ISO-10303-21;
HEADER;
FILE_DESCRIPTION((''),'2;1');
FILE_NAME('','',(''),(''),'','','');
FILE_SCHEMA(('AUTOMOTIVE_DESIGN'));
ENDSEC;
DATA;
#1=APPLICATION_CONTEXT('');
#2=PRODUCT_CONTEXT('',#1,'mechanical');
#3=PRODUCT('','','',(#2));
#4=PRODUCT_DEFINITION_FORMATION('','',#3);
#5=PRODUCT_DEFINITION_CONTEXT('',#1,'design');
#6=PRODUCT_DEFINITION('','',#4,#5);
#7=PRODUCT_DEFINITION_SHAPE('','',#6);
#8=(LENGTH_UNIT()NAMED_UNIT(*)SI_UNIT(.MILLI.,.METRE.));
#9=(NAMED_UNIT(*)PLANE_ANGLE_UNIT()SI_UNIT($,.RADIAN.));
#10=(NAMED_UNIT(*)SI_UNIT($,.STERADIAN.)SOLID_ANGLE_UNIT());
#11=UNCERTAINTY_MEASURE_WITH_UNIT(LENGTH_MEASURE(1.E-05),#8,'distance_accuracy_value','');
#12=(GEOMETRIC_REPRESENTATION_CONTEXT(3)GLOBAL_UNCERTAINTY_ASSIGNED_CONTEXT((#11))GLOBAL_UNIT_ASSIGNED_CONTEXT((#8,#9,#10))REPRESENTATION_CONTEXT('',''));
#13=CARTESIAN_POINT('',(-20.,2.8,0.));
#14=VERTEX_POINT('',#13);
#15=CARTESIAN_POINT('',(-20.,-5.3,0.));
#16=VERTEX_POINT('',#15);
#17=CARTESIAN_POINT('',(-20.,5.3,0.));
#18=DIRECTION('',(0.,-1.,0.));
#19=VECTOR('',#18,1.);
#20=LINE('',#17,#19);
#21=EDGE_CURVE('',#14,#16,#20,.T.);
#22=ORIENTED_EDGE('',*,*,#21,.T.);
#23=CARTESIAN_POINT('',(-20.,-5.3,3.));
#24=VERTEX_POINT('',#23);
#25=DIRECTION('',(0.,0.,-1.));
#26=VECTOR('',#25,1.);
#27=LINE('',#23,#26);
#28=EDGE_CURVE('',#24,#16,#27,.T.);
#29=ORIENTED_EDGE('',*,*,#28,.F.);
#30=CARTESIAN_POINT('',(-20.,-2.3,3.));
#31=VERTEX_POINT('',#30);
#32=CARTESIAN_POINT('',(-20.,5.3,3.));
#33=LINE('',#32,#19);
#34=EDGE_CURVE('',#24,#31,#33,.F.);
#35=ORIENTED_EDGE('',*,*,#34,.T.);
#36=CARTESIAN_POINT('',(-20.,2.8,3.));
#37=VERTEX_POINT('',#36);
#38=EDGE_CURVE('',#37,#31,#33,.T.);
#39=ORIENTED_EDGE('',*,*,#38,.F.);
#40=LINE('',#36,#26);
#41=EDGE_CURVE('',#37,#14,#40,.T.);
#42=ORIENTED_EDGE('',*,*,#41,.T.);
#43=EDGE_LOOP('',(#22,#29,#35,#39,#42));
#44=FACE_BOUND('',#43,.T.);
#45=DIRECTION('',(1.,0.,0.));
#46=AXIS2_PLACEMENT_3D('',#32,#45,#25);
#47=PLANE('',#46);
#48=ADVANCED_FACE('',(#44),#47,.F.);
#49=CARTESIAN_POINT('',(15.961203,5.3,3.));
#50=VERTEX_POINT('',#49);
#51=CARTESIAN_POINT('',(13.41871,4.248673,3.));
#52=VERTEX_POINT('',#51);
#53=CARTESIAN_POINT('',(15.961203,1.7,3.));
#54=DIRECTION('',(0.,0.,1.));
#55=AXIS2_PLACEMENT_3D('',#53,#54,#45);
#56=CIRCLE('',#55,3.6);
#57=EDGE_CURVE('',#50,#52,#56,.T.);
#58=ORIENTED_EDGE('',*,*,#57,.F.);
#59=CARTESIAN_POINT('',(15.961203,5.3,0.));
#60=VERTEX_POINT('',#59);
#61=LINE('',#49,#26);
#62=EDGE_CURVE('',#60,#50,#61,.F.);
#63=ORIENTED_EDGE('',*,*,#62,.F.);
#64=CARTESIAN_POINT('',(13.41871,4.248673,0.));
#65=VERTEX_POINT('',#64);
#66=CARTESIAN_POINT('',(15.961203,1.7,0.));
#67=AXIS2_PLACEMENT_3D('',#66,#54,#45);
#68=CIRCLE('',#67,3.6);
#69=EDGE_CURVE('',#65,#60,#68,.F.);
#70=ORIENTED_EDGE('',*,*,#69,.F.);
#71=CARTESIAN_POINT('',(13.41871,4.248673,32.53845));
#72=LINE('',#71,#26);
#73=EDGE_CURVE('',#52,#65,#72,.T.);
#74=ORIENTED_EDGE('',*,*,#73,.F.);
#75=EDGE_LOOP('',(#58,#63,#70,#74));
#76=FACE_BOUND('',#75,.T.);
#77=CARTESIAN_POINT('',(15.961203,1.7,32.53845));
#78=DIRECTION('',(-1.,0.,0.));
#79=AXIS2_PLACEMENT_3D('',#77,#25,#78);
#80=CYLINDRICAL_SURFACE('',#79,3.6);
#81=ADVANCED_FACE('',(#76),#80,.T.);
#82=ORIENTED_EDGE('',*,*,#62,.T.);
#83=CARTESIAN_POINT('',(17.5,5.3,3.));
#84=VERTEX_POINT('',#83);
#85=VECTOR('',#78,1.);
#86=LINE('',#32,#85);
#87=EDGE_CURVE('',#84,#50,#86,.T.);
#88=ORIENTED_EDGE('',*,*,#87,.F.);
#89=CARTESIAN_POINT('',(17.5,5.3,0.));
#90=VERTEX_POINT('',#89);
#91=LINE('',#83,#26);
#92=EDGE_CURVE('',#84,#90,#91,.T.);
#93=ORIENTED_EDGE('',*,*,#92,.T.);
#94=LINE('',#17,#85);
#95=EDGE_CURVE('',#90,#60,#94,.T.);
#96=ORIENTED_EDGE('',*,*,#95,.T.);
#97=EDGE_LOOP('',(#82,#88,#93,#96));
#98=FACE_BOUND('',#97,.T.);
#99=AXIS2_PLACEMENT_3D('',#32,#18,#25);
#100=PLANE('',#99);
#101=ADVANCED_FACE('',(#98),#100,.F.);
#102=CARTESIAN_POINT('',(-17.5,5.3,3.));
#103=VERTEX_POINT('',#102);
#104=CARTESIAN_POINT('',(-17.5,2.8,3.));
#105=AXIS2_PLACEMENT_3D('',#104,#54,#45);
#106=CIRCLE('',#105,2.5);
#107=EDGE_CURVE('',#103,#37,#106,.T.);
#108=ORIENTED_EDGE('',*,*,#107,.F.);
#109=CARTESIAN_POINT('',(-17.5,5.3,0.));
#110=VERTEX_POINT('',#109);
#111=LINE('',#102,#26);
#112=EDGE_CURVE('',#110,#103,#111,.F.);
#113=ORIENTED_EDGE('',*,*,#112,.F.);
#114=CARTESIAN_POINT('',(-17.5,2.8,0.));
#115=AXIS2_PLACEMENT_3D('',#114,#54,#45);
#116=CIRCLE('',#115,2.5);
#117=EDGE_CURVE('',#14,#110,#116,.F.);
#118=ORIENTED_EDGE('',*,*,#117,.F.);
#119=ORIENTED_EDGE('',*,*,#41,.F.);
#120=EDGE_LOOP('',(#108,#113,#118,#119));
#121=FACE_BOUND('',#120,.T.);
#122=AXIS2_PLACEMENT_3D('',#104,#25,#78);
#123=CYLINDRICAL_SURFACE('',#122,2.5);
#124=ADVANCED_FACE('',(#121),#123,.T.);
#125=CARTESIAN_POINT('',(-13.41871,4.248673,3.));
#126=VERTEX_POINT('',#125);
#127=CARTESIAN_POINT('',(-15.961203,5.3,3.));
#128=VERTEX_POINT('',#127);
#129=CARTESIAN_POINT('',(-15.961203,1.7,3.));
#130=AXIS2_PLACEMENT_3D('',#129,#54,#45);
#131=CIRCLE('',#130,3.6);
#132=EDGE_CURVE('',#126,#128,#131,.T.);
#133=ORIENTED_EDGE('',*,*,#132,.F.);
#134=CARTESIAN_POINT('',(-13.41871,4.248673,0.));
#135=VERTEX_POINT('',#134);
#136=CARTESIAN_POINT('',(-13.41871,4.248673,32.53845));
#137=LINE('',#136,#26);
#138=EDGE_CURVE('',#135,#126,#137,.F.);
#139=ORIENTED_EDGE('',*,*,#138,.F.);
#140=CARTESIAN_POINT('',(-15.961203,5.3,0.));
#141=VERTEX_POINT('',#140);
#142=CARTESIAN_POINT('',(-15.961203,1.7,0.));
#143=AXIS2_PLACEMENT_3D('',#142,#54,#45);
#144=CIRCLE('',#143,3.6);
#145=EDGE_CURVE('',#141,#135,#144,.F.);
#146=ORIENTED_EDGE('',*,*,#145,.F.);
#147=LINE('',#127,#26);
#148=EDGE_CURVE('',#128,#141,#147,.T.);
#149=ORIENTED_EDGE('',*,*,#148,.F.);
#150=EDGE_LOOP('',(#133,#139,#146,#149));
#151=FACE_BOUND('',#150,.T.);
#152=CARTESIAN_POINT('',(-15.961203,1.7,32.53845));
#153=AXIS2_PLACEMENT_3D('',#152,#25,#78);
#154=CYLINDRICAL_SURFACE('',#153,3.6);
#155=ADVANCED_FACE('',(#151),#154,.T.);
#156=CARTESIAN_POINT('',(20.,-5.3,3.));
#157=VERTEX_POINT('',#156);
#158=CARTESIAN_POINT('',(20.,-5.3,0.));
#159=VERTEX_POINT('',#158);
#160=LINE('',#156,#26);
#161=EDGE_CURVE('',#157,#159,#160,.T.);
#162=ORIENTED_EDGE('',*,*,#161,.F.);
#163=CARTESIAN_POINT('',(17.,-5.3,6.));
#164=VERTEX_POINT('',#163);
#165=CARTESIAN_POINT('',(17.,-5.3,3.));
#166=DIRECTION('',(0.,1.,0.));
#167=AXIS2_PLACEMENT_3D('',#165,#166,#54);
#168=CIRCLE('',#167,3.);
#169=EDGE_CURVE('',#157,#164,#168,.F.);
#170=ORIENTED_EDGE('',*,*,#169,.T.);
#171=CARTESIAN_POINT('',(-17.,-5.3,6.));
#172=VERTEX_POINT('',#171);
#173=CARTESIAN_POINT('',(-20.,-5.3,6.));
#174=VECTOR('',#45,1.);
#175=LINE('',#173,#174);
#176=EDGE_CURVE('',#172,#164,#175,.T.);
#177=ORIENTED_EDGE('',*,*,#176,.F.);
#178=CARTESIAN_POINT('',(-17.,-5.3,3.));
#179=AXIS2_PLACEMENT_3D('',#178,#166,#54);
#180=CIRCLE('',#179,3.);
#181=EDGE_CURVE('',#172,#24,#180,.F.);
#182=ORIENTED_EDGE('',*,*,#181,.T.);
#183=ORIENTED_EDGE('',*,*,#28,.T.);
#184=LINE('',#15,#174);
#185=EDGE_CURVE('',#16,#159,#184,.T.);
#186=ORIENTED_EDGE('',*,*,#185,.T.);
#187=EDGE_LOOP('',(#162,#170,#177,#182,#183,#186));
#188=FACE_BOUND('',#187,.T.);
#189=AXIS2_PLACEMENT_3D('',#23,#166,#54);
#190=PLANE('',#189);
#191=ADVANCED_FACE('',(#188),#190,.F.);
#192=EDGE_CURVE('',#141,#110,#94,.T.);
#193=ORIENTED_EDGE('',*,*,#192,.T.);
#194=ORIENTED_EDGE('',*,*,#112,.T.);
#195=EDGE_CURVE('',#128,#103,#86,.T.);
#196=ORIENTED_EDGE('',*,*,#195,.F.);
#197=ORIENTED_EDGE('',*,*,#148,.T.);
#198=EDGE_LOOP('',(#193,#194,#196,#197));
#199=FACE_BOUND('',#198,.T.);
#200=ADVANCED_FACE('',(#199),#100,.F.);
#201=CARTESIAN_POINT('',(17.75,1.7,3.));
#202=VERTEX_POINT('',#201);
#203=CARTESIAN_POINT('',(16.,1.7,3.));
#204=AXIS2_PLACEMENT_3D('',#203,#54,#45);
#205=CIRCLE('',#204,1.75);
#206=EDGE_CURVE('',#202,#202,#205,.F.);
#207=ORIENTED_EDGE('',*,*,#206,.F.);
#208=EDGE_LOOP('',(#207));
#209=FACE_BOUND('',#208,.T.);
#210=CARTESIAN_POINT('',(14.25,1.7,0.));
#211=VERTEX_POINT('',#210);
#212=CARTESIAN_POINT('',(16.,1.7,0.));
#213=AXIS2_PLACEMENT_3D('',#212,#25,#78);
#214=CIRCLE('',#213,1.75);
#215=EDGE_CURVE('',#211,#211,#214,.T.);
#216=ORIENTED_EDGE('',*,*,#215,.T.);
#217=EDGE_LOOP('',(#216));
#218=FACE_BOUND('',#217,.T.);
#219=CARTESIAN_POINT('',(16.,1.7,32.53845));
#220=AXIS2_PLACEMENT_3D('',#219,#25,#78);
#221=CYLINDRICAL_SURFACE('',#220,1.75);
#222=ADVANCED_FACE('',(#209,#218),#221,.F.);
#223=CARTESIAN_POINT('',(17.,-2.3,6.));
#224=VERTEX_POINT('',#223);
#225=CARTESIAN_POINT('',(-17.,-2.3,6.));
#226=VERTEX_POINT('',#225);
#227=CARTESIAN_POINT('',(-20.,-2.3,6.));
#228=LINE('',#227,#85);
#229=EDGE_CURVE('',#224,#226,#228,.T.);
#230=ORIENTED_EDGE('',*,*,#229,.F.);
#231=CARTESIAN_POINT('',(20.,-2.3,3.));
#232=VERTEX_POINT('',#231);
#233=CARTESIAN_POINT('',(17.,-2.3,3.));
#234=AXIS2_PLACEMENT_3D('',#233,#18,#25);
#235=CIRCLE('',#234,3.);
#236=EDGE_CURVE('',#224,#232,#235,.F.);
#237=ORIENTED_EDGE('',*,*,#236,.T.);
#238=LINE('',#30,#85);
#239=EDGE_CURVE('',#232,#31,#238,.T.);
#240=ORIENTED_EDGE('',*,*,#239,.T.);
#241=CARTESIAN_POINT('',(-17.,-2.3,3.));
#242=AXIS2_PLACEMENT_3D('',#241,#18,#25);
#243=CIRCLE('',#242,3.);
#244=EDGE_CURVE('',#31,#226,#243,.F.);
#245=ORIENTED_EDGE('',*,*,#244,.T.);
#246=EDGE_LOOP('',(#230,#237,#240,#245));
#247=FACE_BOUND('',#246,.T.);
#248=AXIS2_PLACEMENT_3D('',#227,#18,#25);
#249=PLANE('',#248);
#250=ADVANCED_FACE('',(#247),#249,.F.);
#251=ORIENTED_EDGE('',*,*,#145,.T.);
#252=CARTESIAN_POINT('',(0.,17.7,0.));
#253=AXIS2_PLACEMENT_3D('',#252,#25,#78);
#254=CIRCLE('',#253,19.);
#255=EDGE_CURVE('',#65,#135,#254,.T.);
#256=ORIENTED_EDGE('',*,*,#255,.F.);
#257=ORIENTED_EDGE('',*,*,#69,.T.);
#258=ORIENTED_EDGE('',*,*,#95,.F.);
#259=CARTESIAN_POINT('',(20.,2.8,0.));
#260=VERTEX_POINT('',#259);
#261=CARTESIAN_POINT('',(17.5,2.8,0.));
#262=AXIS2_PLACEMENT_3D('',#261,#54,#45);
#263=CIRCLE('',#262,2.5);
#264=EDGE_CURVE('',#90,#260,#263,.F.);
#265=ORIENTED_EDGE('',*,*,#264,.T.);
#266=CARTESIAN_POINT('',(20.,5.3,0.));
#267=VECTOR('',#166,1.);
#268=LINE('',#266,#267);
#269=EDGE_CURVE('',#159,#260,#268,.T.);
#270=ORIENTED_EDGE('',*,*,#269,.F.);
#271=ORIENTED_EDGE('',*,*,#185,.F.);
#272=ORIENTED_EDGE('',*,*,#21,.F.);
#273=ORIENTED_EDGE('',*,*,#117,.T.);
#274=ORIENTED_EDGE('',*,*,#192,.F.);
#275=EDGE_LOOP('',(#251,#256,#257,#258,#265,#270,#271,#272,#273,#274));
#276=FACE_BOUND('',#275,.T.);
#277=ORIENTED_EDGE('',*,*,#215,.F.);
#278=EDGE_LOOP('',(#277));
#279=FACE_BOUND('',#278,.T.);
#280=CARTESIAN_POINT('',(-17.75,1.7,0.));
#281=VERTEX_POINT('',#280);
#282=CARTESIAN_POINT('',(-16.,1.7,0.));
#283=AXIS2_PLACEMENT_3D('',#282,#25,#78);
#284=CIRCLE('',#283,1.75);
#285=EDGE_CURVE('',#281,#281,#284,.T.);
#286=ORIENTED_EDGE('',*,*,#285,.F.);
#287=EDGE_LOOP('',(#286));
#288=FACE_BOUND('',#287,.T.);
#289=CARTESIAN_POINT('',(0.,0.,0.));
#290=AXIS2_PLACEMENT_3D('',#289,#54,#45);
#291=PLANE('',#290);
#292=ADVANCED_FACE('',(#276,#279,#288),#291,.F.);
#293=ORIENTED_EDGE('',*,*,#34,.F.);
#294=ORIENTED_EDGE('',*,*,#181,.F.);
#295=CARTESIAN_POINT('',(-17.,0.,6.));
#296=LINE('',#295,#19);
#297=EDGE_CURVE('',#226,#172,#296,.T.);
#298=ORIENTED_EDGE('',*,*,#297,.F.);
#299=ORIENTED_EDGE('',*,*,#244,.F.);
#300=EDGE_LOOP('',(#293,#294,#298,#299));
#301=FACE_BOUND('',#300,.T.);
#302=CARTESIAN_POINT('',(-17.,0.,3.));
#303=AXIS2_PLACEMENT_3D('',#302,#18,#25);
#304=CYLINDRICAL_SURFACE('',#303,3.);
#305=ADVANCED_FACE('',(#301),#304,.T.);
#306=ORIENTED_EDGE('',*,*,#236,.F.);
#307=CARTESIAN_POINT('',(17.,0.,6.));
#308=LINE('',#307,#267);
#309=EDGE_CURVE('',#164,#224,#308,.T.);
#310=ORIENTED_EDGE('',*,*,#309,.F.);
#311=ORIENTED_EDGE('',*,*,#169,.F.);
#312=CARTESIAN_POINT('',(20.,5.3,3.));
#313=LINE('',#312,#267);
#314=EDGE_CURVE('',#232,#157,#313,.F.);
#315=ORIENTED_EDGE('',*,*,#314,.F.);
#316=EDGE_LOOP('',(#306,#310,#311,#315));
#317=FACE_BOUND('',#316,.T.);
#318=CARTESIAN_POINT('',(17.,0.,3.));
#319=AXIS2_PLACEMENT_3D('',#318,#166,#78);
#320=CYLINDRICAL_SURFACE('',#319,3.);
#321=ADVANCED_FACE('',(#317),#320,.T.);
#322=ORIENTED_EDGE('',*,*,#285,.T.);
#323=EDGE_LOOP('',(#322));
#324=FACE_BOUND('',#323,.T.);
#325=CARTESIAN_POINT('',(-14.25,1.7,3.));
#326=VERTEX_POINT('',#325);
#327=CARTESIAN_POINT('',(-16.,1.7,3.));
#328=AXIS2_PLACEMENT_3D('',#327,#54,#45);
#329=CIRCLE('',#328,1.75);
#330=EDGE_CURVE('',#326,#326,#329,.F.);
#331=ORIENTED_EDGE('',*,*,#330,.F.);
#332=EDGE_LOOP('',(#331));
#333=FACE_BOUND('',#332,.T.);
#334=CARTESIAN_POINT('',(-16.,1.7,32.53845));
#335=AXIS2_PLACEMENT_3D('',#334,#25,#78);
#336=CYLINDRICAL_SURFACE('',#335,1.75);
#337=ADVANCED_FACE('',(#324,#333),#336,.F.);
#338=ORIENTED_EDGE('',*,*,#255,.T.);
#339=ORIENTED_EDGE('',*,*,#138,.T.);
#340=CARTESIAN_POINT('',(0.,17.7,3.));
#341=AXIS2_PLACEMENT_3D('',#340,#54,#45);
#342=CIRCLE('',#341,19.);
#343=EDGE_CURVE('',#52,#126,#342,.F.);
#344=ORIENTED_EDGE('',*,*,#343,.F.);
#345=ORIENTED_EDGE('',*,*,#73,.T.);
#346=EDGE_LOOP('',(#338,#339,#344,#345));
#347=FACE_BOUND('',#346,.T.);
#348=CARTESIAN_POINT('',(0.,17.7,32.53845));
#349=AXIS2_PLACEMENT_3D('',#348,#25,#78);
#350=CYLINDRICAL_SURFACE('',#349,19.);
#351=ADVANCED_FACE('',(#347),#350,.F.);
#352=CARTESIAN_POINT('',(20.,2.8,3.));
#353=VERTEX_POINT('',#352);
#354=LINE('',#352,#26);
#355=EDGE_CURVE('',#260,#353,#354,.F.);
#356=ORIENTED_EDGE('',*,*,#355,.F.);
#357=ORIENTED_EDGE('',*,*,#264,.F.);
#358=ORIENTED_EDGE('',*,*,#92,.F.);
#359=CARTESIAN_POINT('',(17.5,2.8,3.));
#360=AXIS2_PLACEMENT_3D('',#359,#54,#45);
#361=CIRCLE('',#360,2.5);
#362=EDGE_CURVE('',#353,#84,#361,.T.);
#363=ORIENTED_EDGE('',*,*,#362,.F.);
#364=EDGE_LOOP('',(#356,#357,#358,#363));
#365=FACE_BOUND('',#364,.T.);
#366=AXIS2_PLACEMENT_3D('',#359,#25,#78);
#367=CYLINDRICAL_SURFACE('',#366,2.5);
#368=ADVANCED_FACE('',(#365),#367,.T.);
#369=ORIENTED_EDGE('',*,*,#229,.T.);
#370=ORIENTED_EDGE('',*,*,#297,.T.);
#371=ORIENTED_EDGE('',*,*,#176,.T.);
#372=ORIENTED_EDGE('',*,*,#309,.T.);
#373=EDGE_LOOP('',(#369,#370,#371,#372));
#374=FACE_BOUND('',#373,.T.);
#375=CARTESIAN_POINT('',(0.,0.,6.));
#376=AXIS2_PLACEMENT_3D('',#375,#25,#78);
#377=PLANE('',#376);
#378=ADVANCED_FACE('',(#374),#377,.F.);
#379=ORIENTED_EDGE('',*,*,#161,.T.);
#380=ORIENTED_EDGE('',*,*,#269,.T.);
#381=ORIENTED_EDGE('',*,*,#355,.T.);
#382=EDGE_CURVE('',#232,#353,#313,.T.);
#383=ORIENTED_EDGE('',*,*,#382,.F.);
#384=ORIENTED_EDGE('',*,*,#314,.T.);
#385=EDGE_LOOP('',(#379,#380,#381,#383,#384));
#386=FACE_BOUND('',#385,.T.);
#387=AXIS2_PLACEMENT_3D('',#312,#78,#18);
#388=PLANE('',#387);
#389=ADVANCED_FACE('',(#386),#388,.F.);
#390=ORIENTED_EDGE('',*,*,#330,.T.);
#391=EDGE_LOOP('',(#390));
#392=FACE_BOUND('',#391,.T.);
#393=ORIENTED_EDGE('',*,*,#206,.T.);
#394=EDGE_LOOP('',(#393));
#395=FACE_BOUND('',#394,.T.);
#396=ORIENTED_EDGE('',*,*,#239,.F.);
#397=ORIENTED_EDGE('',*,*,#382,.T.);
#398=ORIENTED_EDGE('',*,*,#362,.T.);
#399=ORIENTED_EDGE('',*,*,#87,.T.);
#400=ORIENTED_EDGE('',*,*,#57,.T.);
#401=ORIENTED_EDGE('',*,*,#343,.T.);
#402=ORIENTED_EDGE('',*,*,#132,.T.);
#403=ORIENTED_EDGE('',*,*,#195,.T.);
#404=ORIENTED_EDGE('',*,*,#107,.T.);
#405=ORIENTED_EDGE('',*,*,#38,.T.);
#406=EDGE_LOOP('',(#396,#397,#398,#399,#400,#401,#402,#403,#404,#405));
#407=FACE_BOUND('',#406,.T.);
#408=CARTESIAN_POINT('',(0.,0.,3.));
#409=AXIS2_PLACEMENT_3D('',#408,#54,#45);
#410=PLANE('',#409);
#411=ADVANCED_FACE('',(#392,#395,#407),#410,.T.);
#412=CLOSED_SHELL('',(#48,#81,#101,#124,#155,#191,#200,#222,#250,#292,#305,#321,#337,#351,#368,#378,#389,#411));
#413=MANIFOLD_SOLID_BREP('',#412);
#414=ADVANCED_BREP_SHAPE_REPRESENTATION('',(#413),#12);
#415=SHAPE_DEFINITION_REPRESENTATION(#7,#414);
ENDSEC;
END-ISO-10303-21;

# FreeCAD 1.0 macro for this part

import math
import FreeCAD as App
import Part
import Sketcher

V = App.Vector


def edges_at(feature, points):
    """Names of the edges that pass closest to the given points."""
    edges = feature.Shape.Edges
    near = lambda p: min(range(len(edges)), key=lambda i: edges[i].distToShape(Part.Vertex(*p))[0])
    return sorted({f"Edge{near(p) + 1}" for p in points})


def add_polygon(sketch, points):
    """Adds a closed chain of lines whose ends are joined by coincident constraints."""
    first, n = sketch.GeometryCount, len(points)
    for a, b in zip(points, points[1:] + points[:1]):
        sketch.addGeometry(Part.LineSegment(App.Vector(*a, 0), App.Vector(*b, 0)), False)
    for i in range(n):
        sketch.addConstraint(Sketcher.Constraint("Coincident", first + i, 2, first + (i + 1) % n, 1))

doc = App.newDocument("Part")
body = doc.addObject("PartDesign::Body", "Body")

# Sketch on XY plane
sketch1 = doc.addObject("Sketcher::SketchObject", "Sketch")
body.addObject(sketch1)
sketch1.AttachmentSupport = (doc.XY_Plane, [""])
sketch1.MapMode = "FlatFace"
add_polygon(sketch1, [(-20, 5), (-20, -5), (20, -5), (20, 5)])  # lines 0-3
sketch1.addConstraint(Sketcher.Constraint("Vertical", 0))
sketch1.addConstraint(Sketcher.Constraint("Horizontal", 1))
sketch1.addConstraint(Sketcher.Constraint("Vertical", 2))
sketch1.addConstraint(Sketcher.Constraint("Horizontal", 3))
sketch1.addConstraint(Sketcher.Constraint("Symmetric", 0, 2, 2, 2, -1, 1))
sketch1.addConstraint(Sketcher.Constraint("DistanceX", 1, 1, 1, 2, 40.0))
sketch1.addConstraint(Sketcher.Constraint("DistanceY", 0, 2, 0, 1, 10.6))
pad1 = doc.addObject("PartDesign::Pad", "Pad")
body.addObject(pad1)
pad1.Profile = sketch1
pad1.Length = 3

# Sketch on XY plane
sketch2 = doc.addObject("Sketcher::SketchObject", "Sketch001")
body.addObject(sketch2)
sketch2.AttachmentSupport = (doc.XY_Plane, [""])
sketch2.MapMode = "FlatFace"
sketch2.AttachmentOffset = App.Placement(V(0, 0, 3), App.Rotation())
add_polygon(sketch2, [(-20, -2.3), (-20, -5.3), (20, -5.3), (20, -2.3)])  # lines 0-3
sketch2.addConstraint(Sketcher.Constraint("Vertical", 0))
sketch2.addConstraint(Sketcher.Constraint("Horizontal", 1))
sketch2.addConstraint(Sketcher.Constraint("Vertical", 2))
sketch2.addConstraint(Sketcher.Constraint("Horizontal", 3))
sketch2.addConstraint(Sketcher.Constraint("DistanceX", 1, 1, 1, 2, 40.0))
sketch2.addConstraint(Sketcher.Constraint("DistanceY", 0, 2, 0, 1, 3.0))
sketch2.addConstraint(Sketcher.Constraint("DistanceX", 0, 2, -1, 1, 20.0))
sketch2.addConstraint(Sketcher.Constraint("DistanceY", 0, 2, -1, 1, 5.3))
pad2 = doc.addObject("PartDesign::Pad", "Pad001")
body.addObject(pad2)
pad2.Profile = sketch2
pad2.Length = 3
doc.recompute()

fillet = doc.addObject("PartDesign::Fillet", "Fillet")
body.addObject(fillet)
fillet.Base = (pad2, edges_at(pad2, [(-20, -3.8, 6), (20, -3.8, 6)]))
fillet.Radius = 3

# Sketch on XY plane
sketch3 = doc.addObject("Sketcher::SketchObject", "Sketch002")
body.addObject(sketch3)
sketch3.AttachmentSupport = (doc.XY_Plane, [""])
sketch3.MapMode = "FlatFace"
sketch3.addGeometry(Part.ArcOfCircle(Part.Circle(V(0, 17.7, 0), V(0, 0, 1), 19), math.radians(-180), math.radians(-139)), False)
sketch3.addGeometry(Part.ArcOfCircle(Part.Circle(V(0, 17.7, 0), V(0, 0, 1), 19), math.radians(-41), math.radians(180)), False)
sketch3.addGeometry(Part.ArcOfCircle(Part.Circle(V(0, 17.7, 0), V(0, 0, 1), 19), math.radians(-139), math.radians(-41)), False)
sketch3.addGeometry(Part.Circle(V(-16, 1.7, 0), V(0, 0, 1), 1.8), False)
sketch3.addGeometry(Part.Circle(V(16, 1.7, 0), V(0, 0, 1), 1.8), False)
sketch3.addConstraint(Sketcher.Constraint("Tangent", 0, 1, 1, 2))
sketch3.addConstraint(Sketcher.Constraint("Tangent", 1, 1, 2, 2))
sketch3.addConstraint(Sketcher.Constraint("Tangent", 2, 1, 0, 2))
sketch3.addConstraint(Sketcher.Constraint("Equal", 3, 4))
sketch3.addConstraint(Sketcher.Constraint("Symmetric", 3, 3, 4, 3, -2))
sketch3.addConstraint(Sketcher.Constraint("Symmetric", 1, 1, 2, 1, -2))
sketch3.addConstraint(Sketcher.Constraint("Horizontal", 2, 3, 0, 1))
sketch3.addConstraint(Sketcher.Constraint("Radius", 0, 19.0))
sketch3.addConstraint(Sketcher.Constraint("Diameter", 3, 3.5))
sketch3.addConstraint(Sketcher.Constraint("DistanceX", 3, 3, -1, 1, 16.0))
sketch3.addConstraint(Sketcher.Constraint("DistanceY", 3, 3, 2, 3, 16.0))
sketch3.addConstraint(Sketcher.Constraint("DistanceY", -1, 1, 0, 3, 17.7))
sketch3.addConstraint(Sketcher.Constraint("DistanceY", -1, 1, 1, 1, 5.3))
pocket1 = doc.addObject("PartDesign::Pocket", "Pocket")
body.addObject(pocket1)
pocket1.Profile = sketch3
pocket1.Length = 3
pocket1.Reversed = True
doc.recompute()

fillet2 = doc.addObject("PartDesign::Fillet", "Fillet001")
body.addObject(fillet2)
fillet2.Base = (pocket1, edges_at(pocket1, [(-20, 5.3, 1.5), (20, 5.3, 1.5)]))
fillet2.Radius = 2.5
doc.recompute()

fillet3 = doc.addObject("PartDesign::Fillet", "Fillet002")
body.addObject(fillet3)
fillet3.Base = (fillet2, edges_at(fillet2, [(-14.396, 5.3, 1.5), (14.396, 5.3, 1.5)]))
fillet3.Radius = 3.6

doc.recompute()
